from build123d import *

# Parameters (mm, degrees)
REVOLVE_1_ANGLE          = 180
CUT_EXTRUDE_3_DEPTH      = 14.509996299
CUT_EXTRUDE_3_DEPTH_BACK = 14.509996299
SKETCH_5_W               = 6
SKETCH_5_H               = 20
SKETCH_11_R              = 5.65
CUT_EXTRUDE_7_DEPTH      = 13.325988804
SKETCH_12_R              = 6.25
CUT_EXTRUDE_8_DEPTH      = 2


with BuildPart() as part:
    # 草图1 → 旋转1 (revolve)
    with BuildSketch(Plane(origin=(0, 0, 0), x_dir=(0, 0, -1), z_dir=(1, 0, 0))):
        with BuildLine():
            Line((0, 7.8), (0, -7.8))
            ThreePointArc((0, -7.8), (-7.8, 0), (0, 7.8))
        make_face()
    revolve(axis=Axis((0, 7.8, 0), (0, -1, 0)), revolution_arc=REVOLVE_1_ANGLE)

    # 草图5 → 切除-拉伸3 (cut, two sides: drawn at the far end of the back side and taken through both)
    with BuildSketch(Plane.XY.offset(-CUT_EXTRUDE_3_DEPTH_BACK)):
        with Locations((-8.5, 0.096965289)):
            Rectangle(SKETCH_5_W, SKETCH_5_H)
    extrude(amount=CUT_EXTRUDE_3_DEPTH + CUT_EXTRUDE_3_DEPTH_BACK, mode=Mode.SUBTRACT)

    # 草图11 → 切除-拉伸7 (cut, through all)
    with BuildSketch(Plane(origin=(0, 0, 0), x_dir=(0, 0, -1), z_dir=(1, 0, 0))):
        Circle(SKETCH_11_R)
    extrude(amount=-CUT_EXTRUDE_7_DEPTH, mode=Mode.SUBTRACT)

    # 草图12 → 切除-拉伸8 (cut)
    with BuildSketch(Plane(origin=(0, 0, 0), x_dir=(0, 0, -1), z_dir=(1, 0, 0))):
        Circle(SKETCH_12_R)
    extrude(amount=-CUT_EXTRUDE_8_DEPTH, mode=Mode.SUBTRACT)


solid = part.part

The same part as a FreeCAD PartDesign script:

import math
import FreeCAD as App
import Part
import Sketcher
from FreeCAD import Vector

doc = App.newDocument("Part")
body = doc.addObject("PartDesign::Body", "Body")

# Sketch on YZ plane
sketch1 = body.newObject("Sketcher::SketchObject", "Sketch")
sketch1.AttachmentSupport = (doc.getObject("YZ_Plane"), [""])
sketch1.MapMode = "FlatFace"
sketch1.addGeometry([
    Part.LineSegment(Vector(-8, 0, 0), Vector(8, 0, 0)),
    Part.ArcOfCircle(Part.Circle(Vector(0, 0, 0), Vector(0, 0, 1), 8), math.radians(0), math.radians(180)),
], False)
sketch1.addConstraint([
    Sketcher.Constraint("Coincident", 0, 1, 1, 2),
    Sketcher.Constraint("Coincident", 1, 1, 0, 2),
    Sketcher.Constraint("Horizontal", 0),
    Sketcher.Constraint("Coincident", 1, 3, -1, 1),
    Sketcher.Constraint("PointOnObject", 0, 1, -1),
    Sketcher.Constraint("Radius", 1, 7.8),
])
revolution = body.newObject("PartDesign::Revolution", "Revolution")
revolution.Profile = sketch1
revolution.ReferenceAxis = (sketch1, ["H_Axis"])
revolution.Angle = 180
revolution.Reversed = True

# Sketch on XY plane
sketch2 = body.newObject("Sketcher::SketchObject", "Sketch001")
sketch2.AttachmentSupport = (doc.getObject("XY_Plane"), [""])
sketch2.MapMode = "FlatFace"
sketch2.addGeometry([
    Part.LineSegment(Vector(-12, 10, 0), Vector(-12, -10, 0)),
    Part.LineSegment(Vector(-12, -10, 0), Vector(-6, -10, 0)),
    Part.LineSegment(Vector(-6, -10, 0), Vector(-6, 10, 0)),
    Part.LineSegment(Vector(-6, 10, 0), Vector(-12, 10, 0)),
], False)
sketch2.addConstraint([
    Sketcher.Constraint("Coincident", 0, 2, 1, 1),
    Sketcher.Constraint("Coincident", 1, 2, 2, 1),
    Sketcher.Constraint("Coincident", 2, 2, 3, 1),
    Sketcher.Constraint("Coincident", 3, 2, 0, 1),
    Sketcher.Constraint("Vertical", 0),
    Sketcher.Constraint("Horizontal", 1),
    Sketcher.Constraint("Vertical", 2),
    Sketcher.Constraint("Horizontal", 3),
    Sketcher.Constraint("DistanceX", 1, 1, 1, 2, 6.0),
    Sketcher.Constraint("DistanceY", 0, 2, 0, 1, 20.0),
    Sketcher.Constraint("DistanceX", 0, 2, -1, 1, 11.5),
    Sketcher.Constraint("DistanceY", 0, 2, -1, 1, 9.903035),
])
pocket1 = body.newObject("PartDesign::Pocket", "Pocket")
pocket1.Profile = sketch2
pocket1.Type = "ThroughAll"
pocket1.Midplane = True

# Sketch on YZ plane
sketch3 = body.newObject("Sketcher::SketchObject", "Sketch002")
sketch3.AttachmentSupport = (doc.getObject("YZ_Plane"), [""])
sketch3.MapMode = "FlatFace"
sketch3.addGeometry(Part.Circle(Vector(0, 0, 0), Vector(0, 0, 1), 6), False)
sketch3.addConstraint([
    Sketcher.Constraint("Coincident", 0, 3, -1, 1),
    Sketcher.Constraint("Diameter", 0, 11.3),
])
pocket2 = body.newObject("PartDesign::Pocket", "Pocket001")
pocket2.Profile = sketch3
pocket2.Type = "ThroughAll"

# Sketch on YZ plane
sketch4 = body.newObject("Sketcher::SketchObject", "Sketch003")
sketch4.AttachmentSupport = (doc.getObject("YZ_Plane"), [""])
sketch4.MapMode = "FlatFace"
sketch4.addGeometry(Part.Circle(Vector(0, 0, 0), Vector(0, 0, 1), 6), False)
sketch4.addConstraint([
    Sketcher.Constraint("Coincident", 0, 3, -1, 1),
    Sketcher.Constraint("Diameter", 0, 12.5),
])
pocket3 = body.newObject("PartDesign::Pocket", "Pocket002")
pocket3.Profile = sketch4
pocket3.Length = 2

doc.recompute()
